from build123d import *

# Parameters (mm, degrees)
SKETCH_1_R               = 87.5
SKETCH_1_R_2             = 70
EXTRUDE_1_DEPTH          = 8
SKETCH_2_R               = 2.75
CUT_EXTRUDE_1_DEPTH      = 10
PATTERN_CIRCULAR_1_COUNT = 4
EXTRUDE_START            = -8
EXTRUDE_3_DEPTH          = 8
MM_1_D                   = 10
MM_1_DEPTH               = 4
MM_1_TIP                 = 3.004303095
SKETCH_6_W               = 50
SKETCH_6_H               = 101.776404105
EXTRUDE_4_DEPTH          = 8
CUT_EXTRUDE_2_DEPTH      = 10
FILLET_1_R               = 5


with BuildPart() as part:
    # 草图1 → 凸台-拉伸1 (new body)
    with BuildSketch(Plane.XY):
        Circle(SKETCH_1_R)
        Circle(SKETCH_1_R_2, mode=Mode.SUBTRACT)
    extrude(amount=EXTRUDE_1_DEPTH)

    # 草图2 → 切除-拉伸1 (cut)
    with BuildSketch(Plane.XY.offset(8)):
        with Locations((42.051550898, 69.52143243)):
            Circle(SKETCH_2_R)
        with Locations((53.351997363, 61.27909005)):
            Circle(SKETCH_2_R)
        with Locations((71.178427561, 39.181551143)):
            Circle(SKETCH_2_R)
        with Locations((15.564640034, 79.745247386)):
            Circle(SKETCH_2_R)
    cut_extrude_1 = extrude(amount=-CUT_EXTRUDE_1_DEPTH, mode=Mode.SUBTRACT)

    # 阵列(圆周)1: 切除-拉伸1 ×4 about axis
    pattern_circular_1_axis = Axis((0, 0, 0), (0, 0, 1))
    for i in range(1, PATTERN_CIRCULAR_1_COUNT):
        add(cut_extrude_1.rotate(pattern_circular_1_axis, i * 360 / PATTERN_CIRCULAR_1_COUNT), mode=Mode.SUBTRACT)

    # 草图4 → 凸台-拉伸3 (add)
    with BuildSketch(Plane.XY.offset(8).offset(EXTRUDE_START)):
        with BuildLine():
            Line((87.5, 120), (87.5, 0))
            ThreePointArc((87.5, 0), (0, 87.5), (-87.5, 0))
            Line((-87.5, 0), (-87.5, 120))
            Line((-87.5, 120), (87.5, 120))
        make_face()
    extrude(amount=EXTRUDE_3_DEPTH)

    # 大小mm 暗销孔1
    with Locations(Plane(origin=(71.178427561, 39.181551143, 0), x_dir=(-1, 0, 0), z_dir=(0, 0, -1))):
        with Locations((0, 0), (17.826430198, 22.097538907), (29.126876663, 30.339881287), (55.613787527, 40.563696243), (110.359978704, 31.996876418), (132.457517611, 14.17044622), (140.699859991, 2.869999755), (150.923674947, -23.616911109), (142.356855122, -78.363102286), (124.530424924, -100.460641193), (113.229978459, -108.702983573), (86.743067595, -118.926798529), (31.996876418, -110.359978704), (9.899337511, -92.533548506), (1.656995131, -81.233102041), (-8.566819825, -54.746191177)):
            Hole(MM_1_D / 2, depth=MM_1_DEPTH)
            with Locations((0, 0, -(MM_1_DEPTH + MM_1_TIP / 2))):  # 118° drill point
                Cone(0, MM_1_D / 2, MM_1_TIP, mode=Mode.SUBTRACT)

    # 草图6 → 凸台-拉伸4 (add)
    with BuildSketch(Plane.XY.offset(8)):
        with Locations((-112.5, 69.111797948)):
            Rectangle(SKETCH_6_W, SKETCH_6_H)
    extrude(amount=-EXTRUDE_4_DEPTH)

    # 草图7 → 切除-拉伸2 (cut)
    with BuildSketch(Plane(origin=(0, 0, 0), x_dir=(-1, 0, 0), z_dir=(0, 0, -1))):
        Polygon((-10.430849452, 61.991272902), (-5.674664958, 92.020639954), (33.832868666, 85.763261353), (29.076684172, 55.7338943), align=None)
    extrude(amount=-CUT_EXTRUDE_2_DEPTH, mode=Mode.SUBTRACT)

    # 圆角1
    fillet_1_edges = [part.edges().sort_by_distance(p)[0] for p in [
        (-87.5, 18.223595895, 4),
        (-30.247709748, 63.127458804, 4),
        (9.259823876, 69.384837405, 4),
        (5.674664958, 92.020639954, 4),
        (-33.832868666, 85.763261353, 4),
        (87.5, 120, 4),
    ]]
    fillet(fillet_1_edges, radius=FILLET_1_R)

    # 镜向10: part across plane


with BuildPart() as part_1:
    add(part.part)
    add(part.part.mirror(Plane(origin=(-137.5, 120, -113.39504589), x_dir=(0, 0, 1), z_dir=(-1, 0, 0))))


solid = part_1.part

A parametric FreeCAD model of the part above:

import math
import FreeCAD as App
import Part
import Sketcher

V = App.Vector
Q = App.Units.Quantity


def edges_at(feature, points):
    """Names of the edges that pass closest to the given points."""
    edges = feature.Shape.Edges
    near = lambda p: min(range(len(edges)), key=lambda i: edges[i].distToShape(Part.Vertex(*p))[0])
    return sorted({f"Edge{near(p) + 1}" for p in points})

doc = App.newDocument("Part")
body = doc.addObject("PartDesign::Body", "Body")

sketch1 = doc.addObject("Sketcher::SketchObject", "Sketch")
body.addObject(sketch1)
sketch1.AttachmentSupport = (doc.XY_Plane, [""])
sketch1.MapMode = "FlatFace"
sketch1.addGeometry([
    Part.Circle(V(0, 0, 0), V(0, 0, 1), 88),
    Part.Circle(V(0, 0, 0), V(0, 0, 1), 70),
], False)
sketch1.addConstraint([
    Sketcher.Constraint("Coincident", 0, 3, -1, 1),
    Sketcher.Constraint("Coincident", 1, 3, -1, 1),
    Sketcher.Constraint("Diameter", 0, Q("175 mm")),
    Sketcher.Constraint("Diameter", 1, Q("140 mm")),
])
pad1 = doc.addObject("PartDesign::Pad", "Pad")
body.addObject(pad1)
pad1.Profile = sketch1
pad1.Length = 8

sketch2 = doc.addObject("Sketcher::SketchObject", "Sketch001")
body.addObject(sketch2)
sketch2.AttachmentSupport = (doc.XY_Plane, [""])
sketch2.MapMode = "FlatFace"
sketch2.AttachmentOffset = App.Placement(V(0, 0, 8), App.Rotation())
sketch2.addGeometry([
    Part.Circle(V(42.1, 69.5, 0), V(0, 0, 1), 2.8),
    Part.Circle(V(53.4, 61.3, 0), V(0, 0, 1), 2.8),
    Part.Circle(V(71.2, 39.2, 0), V(0, 0, 1), 2.8),
    Part.Circle(V(15.6, 79.7, 0), V(0, 0, 1), 2.8),
], False)
sketch2.addConstraint([
    Sketcher.Constraint("Equal", 0, 1),
    Sketcher.Constraint("Equal", 1, 2),
    Sketcher.Constraint("Equal", 2, 3),
    Sketcher.Constraint("Diameter", 0, Q("5.5 mm")),
    Sketcher.Constraint("DistanceX", -1, 1, 0, 3, Q("42.051551 mm")),
    Sketcher.Constraint("DistanceY", -1, 1, 1, 3, Q("61.27909 mm")),
    Sketcher.Constraint("DistanceY", -1, 1, 2, 3, Q("39.181551 mm")),
    Sketcher.Constraint("DistanceX", -1, 1, 3, 3, Q("15.56464 mm")),
    Sketcher.Constraint("DistanceX", 1, 3, 2, 3, Q("17.82643 mm")),
    Sketcher.Constraint("DistanceY", 2, 3, 0, 3, Q("30.339881 mm")),
    Sketcher.Constraint("DistanceX", -1, 1, 1, 3, Q("53.351997 mm")),
    Sketcher.Constraint("DistanceY", -1, 1, 3, 3, Q("79.745247 mm")),
])
pocket1 = doc.addObject("PartDesign::Pocket", "Pocket")
body.addObject(pocket1)
pocket1.Profile = sketch2
pocket1.Length = 10
doc.recompute()

polarpattern = doc.addObject("PartDesign::PolarPattern", "PolarPattern")
body.addObject(polarpattern)
polarpattern.Originals = [pocket1]
polarpattern.Axis = (doc.Z_Axis, [""])
polarpattern.Angle = 360
polarpattern.Occurrences = 4
body.Tip = polarpattern

sketch3 = doc.addObject("Sketcher::SketchObject", "Sketch002")
body.addObject(sketch3)
sketch3.AttachmentSupport = (doc.XY_Plane, [""])
sketch3.MapMode = "FlatFace"
sketch3.addGeometry([
    Part.LineSegment(V(88, 0, 0), V(88, 120, 0)),
    Part.LineSegment(V(88, 120, 0), V(-88, 120, 0)),
    Part.LineSegment(V(-88, 120, 0), V(-88, 0, 0)),
    Part.ArcOfCircle(Part.Circle(V(0, 0, 0), V(0, 0, 1), 88), math.radians(0), math.radians(180)),
], False)
sketch3.addConstraint([
    Sketcher.Constraint("Coincident", 0, 2, 1, 1),
    Sketcher.Constraint("Coincident", 1, 2, 2, 1),
    Sketcher.Constraint("Tangent", 2, 2, 3, 2),
    Sketcher.Constraint("Tangent", 3, 1, 0, 1),
    Sketcher.Constraint("Vertical", 0),
    Sketcher.Constraint("Horizontal", 1),
    Sketcher.Constraint("Vertical", 2),
    Sketcher.Constraint("Coincident", 3, 3, -1, 1),
    Sketcher.Constraint("Radius", 3, Q("87.5 mm")),
    Sketcher.Constraint("DistanceY", 0, 1, 0, 2, Q("120 mm")),
])
pad2 = doc.addObject("PartDesign::Pad", "Pad001")
body.addObject(pad2)
pad2.Profile = sketch3
pad2.Length = 8

sketch4 = doc.addObject("Sketcher::SketchObject", "Sketch003")
body.addObject(sketch4)
sketch4.AttachmentSupport = (doc.XY_Plane, [""])
sketch4.MapMode = "FlatFace"
sketch4.addGeometry([
    Part.Circle(V(71, 39, 0), V(0, 0, 1), 5),
    Part.Circle(V(53, 61, 0), V(0, 0, 1), 5),
    Part.Circle(V(42, 70, 0), V(0, 0, 1), 5),
    Part.Circle(V(16, 80, 0), V(0, 0, 1), 5),
    Part.Circle(V(-39, 71, 0), V(0, 0, 1), 5),
    Part.Circle(V(-61, 53, 0), V(0, 0, 1), 5),
    Part.Circle(V(-70, 42, 0), V(0, 0, 1), 5),
    Part.Circle(V(-80, 16, 0), V(0, 0, 1), 5),
    Part.Circle(V(-71, -39, 0), V(0, 0, 1), 5),
    Part.Circle(V(-53, -61, 0), V(0, 0, 1), 5),
    Part.Circle(V(-42, -70, 0), V(0, 0, 1), 5),
    Part.Circle(V(-16, -80, 0), V(0, 0, 1), 5),
    Part.Circle(V(39, -71, 0), V(0, 0, 1), 5),
    Part.Circle(V(61, -53, 0), V(0, 0, 1), 5),
    Part.Circle(V(70, -42, 0), V(0, 0, 1), 5),
    Part.Circle(V(80, -16, 0), V(0, 0, 1), 5),
], False)
sketch4.addConstraint([
    Sketcher.Constraint("Equal", 0, 1),
    Sketcher.Constraint("Equal", 1, 2),
    Sketcher.Constraint("Equal", 2, 3),
    Sketcher.Constraint("Equal", 3, 4),
    Sketcher.Constraint("Equal", 4, 5),
    Sketcher.Constraint("Equal", 5, 6),
    Sketcher.Constraint("Equal", 6, 7),
    Sketcher.Constraint("Equal", 7, 8),
    Sketcher.Constraint("Equal", 8, 9),
    Sketcher.Constraint("Equal", 9, 10),
    Sketcher.Constraint("Equal", 10, 11),
    Sketcher.Constraint("Equal", 11, 12),
    Sketcher.Constraint("Equal", 12, 13),
    Sketcher.Constraint("Equal", 13, 14),
    Sketcher.Constraint("Equal", 14, 15),
    Sketcher.Constraint("Symmetric", 0, 3, 8, 3, -1, 1),
    Sketcher.Constraint("Symmetric", 1, 3, 9, 3, -1, 1),
    Sketcher.Constraint("Symmetric", 2, 3, 10, 3, -1, 1),
    Sketcher.Constraint("Symmetric", 3, 3, 11, 3, -1, 1),
    Sketcher.Constraint("Symmetric", 4, 3, 12, 3, -1, 1),
    Sketcher.Constraint("Symmetric", 5, 3, 13, 3, -1, 1),
    Sketcher.Constraint("Symmetric", 6, 3, 14, 3, -1, 1),
    Sketcher.Constraint("Symmetric", 7, 3, 15, 3, -1, 1),
    Sketcher.Constraint("Diameter", 0, Q("10 mm")),
    Sketcher.Constraint("DistanceX", 7, 3, 2, 3, Q("121.796798 mm")),
    Sketcher.Constraint("DistanceY", 8, 3, 3, 3, Q("118.926799 mm")),
    Sketcher.Constraint("DistanceY", 11, 3, 6, 3, Q("121.796798 mm")),
    Sketcher.Constraint("DistanceY", -1, 1, 0, 3, Q("39.181551 mm")),
    Sketcher.Constraint("DistanceY", -1, 1, 1, 3, Q("61.27909 mm")),
    Sketcher.Constraint("DistanceX", -1, 1, 2, 3, Q("42.051551 mm")),
    Sketcher.Constraint("DistanceX", -1, 1, 3, 3, Q("15.56464 mm")),
    Sketcher.Constraint("DistanceX", 4, 3, -1, 1, Q("39.181551 mm")),
    Sketcher.Constraint("DistanceX", 5, 3, -1, 1, Q("61.27909 mm")),
    Sketcher.Constraint("DistanceY", -1, 1, 7, 3, Q("15.56464 mm")),
    Sketcher.Constraint("DistanceX", 1, 3, 0, 3, Q("17.82643 mm")),
    Sketcher.Constraint("DistanceY", 0, 3, 2, 3, Q("30.339881 mm")),
    Sketcher.Constraint("DistanceY", 4, 3, 3, 3, Q("8.56682 mm")),
    Sketcher.Constraint("DistanceX", 4, 3, 1, 3, Q("92.533549 mm")),
    Sketcher.Constraint("DistanceY", 5, 3, 4, 3, Q("17.82643 mm")),
    Sketcher.Constraint("DistanceX", 6, 3, 4, 3, Q("30.339881 mm")),
])
doc.recompute()
hole = doc.addObject("PartDesign::Hole", "Hole")
body.addObject(hole)
hole.Profile = sketch4
hole.ThreadType = "None"
hole.Diameter = 10
hole.DepthType = "Dimension"
hole.Depth = 4
hole.DrillPoint = "Angled"
hole.DrillPointAngle = 118
hole.Reversed = True

sketch5 = doc.addObject("Sketcher::SketchObject", "Sketch004")
body.addObject(sketch5)
sketch5.AttachmentSupport = (doc.XY_Plane, [""])
sketch5.MapMode = "FlatFace"
sketch5.AttachmentOffset = App.Placement(V(0, 0, 8), App.Rotation())
sketch5.addGeometry([
    Part.LineSegment(V(-138, 120, 0), V(-138, 18, 0)),
    Part.LineSegment(V(-138, 18, 0), V(-88, 18, 0)),
    Part.LineSegment(V(-88, 18, 0), V(-88, 120, 0)),
    Part.LineSegment(V(-88, 120, 0), V(-138, 120, 0)),
], False)
sketch5.addConstraint([
    Sketcher.Constraint("Coincident", 0, 2, 1, 1),
    Sketcher.Constraint("Coincident", 1, 2, 2, 1),
    Sketcher.Constraint("Coincident", 2, 2, 3, 1),
    Sketcher.Constraint("Coincident", 3, 2, 0, 1),
    Sketcher.Constraint("Vertical", 0),
    Sketcher.Constraint("Horizontal", 1),
    Sketcher.Constraint("Vertical", 2),
    Sketcher.Constraint("Horizontal", 3),
    Sketcher.Constraint("DistanceX", 1, 1, 1, 2, Q("50 mm")),
    Sketcher.Constraint("DistanceY", -1, 1, 2, 2, Q("120 mm")),
    Sketcher.Constraint("DistanceX", 0, 2, -1, 1, Q("137.5 mm")),
    Sketcher.Constraint("DistanceY", 0, 2, 0, 1, Q("101.776404 mm")),
])
pad3 = doc.addObject("PartDesign::Pad", "Pad002")
body.addObject(pad3)
pad3.Profile = sketch5
pad3.Length = 8
pad3.Reversed = True

sketch6 = doc.addObject("Sketcher::SketchObject", "Sketch005")
body.addObject(sketch6)
sketch6.AttachmentSupport = (doc.XY_Plane, [""])
sketch6.MapMode = "FlatFace"
sketch6.addGeometry([
    Part.LineSegment(V(6, 92, 0), V(10, 62, 0)),
    Part.LineSegment(V(10, 62, 0), V(-29, 56, 0)),
    Part.LineSegment(V(-29, 56, 0), V(-34, 86, 0)),
    Part.LineSegment(V(-34, 86, 0), V(6, 92, 0)),
], False)
sketch6.addConstraint([
    Sketcher.Constraint("Coincident", 0, 2, 1, 1),
    Sketcher.Constraint("Coincident", 1, 2, 2, 1),
    Sketcher.Constraint("Coincident", 2, 2, 3, 1),
    Sketcher.Constraint("Coincident", 3, 2, 0, 1),
    Sketcher.Constraint("Perpendicular", 0, 1),
    Sketcher.Constraint("Perpendicular", 1, 2),
    Sketcher.Constraint("Perpendicular", 2, 3),
    Sketcher.Constraint("Angle", 0, Q("-81 deg")),
    Sketcher.Constraint("Distance", 1, Q("40 mm")),
    Sketcher.Constraint("DistanceX", -1, 1, 0, 2, Q("10.430849 mm")),
    Sketcher.Constraint("DistanceX", 2, 2, -1, 1, Q("33.832869 mm")),
    Sketcher.Constraint("DistanceY", -1, 1, 2, 2, Q("85.763261 mm")),
])
pocket2 = doc.addObject("PartDesign::Pocket", "Pocket001")
body.addObject(pocket2)
pocket2.Profile = sketch6
pocket2.Length = 10
pocket2.Reversed = True
doc.recompute()

fillet = doc.addObject("PartDesign::Fillet", "Fillet")
body.addObject(fillet)
fillet.Base = (pocket2, edges_at(pocket2, [
    (-87.5, 18.224, 4),
    (-30.248, 63.127, 4),
    (9.26, 69.385, 4),
    (5.675, 92.021, 4),
    (-33.833, 85.763, 4),
    (87.5, 120, 4),
]))
fillet.Radius = 5
body2 = doc.addObject("PartDesign::Body", "Body001")
doc.recompute()

body2.BaseFeature = body
doc.recompute()

mirroring = doc.addObject("Part::Mirroring", "Mirroring")
mirroring.Source = body
mirroring.Base = V(-137.5, 120, -113.395046)
mirroring.Normal = V(-1, 0, 0)
body3 = doc.addObject("PartDesign::Body", "Body002")
body3.BaseFeature = mirroring
boolean = doc.addObject("PartDesign::Boolean", "Boolean")
body2.addObject(boolean)
boolean.Type = "Fuse"
boolean.addObjects([body3])
doc.recompute()
mirroring.Visibility = False

doc.recompute()
